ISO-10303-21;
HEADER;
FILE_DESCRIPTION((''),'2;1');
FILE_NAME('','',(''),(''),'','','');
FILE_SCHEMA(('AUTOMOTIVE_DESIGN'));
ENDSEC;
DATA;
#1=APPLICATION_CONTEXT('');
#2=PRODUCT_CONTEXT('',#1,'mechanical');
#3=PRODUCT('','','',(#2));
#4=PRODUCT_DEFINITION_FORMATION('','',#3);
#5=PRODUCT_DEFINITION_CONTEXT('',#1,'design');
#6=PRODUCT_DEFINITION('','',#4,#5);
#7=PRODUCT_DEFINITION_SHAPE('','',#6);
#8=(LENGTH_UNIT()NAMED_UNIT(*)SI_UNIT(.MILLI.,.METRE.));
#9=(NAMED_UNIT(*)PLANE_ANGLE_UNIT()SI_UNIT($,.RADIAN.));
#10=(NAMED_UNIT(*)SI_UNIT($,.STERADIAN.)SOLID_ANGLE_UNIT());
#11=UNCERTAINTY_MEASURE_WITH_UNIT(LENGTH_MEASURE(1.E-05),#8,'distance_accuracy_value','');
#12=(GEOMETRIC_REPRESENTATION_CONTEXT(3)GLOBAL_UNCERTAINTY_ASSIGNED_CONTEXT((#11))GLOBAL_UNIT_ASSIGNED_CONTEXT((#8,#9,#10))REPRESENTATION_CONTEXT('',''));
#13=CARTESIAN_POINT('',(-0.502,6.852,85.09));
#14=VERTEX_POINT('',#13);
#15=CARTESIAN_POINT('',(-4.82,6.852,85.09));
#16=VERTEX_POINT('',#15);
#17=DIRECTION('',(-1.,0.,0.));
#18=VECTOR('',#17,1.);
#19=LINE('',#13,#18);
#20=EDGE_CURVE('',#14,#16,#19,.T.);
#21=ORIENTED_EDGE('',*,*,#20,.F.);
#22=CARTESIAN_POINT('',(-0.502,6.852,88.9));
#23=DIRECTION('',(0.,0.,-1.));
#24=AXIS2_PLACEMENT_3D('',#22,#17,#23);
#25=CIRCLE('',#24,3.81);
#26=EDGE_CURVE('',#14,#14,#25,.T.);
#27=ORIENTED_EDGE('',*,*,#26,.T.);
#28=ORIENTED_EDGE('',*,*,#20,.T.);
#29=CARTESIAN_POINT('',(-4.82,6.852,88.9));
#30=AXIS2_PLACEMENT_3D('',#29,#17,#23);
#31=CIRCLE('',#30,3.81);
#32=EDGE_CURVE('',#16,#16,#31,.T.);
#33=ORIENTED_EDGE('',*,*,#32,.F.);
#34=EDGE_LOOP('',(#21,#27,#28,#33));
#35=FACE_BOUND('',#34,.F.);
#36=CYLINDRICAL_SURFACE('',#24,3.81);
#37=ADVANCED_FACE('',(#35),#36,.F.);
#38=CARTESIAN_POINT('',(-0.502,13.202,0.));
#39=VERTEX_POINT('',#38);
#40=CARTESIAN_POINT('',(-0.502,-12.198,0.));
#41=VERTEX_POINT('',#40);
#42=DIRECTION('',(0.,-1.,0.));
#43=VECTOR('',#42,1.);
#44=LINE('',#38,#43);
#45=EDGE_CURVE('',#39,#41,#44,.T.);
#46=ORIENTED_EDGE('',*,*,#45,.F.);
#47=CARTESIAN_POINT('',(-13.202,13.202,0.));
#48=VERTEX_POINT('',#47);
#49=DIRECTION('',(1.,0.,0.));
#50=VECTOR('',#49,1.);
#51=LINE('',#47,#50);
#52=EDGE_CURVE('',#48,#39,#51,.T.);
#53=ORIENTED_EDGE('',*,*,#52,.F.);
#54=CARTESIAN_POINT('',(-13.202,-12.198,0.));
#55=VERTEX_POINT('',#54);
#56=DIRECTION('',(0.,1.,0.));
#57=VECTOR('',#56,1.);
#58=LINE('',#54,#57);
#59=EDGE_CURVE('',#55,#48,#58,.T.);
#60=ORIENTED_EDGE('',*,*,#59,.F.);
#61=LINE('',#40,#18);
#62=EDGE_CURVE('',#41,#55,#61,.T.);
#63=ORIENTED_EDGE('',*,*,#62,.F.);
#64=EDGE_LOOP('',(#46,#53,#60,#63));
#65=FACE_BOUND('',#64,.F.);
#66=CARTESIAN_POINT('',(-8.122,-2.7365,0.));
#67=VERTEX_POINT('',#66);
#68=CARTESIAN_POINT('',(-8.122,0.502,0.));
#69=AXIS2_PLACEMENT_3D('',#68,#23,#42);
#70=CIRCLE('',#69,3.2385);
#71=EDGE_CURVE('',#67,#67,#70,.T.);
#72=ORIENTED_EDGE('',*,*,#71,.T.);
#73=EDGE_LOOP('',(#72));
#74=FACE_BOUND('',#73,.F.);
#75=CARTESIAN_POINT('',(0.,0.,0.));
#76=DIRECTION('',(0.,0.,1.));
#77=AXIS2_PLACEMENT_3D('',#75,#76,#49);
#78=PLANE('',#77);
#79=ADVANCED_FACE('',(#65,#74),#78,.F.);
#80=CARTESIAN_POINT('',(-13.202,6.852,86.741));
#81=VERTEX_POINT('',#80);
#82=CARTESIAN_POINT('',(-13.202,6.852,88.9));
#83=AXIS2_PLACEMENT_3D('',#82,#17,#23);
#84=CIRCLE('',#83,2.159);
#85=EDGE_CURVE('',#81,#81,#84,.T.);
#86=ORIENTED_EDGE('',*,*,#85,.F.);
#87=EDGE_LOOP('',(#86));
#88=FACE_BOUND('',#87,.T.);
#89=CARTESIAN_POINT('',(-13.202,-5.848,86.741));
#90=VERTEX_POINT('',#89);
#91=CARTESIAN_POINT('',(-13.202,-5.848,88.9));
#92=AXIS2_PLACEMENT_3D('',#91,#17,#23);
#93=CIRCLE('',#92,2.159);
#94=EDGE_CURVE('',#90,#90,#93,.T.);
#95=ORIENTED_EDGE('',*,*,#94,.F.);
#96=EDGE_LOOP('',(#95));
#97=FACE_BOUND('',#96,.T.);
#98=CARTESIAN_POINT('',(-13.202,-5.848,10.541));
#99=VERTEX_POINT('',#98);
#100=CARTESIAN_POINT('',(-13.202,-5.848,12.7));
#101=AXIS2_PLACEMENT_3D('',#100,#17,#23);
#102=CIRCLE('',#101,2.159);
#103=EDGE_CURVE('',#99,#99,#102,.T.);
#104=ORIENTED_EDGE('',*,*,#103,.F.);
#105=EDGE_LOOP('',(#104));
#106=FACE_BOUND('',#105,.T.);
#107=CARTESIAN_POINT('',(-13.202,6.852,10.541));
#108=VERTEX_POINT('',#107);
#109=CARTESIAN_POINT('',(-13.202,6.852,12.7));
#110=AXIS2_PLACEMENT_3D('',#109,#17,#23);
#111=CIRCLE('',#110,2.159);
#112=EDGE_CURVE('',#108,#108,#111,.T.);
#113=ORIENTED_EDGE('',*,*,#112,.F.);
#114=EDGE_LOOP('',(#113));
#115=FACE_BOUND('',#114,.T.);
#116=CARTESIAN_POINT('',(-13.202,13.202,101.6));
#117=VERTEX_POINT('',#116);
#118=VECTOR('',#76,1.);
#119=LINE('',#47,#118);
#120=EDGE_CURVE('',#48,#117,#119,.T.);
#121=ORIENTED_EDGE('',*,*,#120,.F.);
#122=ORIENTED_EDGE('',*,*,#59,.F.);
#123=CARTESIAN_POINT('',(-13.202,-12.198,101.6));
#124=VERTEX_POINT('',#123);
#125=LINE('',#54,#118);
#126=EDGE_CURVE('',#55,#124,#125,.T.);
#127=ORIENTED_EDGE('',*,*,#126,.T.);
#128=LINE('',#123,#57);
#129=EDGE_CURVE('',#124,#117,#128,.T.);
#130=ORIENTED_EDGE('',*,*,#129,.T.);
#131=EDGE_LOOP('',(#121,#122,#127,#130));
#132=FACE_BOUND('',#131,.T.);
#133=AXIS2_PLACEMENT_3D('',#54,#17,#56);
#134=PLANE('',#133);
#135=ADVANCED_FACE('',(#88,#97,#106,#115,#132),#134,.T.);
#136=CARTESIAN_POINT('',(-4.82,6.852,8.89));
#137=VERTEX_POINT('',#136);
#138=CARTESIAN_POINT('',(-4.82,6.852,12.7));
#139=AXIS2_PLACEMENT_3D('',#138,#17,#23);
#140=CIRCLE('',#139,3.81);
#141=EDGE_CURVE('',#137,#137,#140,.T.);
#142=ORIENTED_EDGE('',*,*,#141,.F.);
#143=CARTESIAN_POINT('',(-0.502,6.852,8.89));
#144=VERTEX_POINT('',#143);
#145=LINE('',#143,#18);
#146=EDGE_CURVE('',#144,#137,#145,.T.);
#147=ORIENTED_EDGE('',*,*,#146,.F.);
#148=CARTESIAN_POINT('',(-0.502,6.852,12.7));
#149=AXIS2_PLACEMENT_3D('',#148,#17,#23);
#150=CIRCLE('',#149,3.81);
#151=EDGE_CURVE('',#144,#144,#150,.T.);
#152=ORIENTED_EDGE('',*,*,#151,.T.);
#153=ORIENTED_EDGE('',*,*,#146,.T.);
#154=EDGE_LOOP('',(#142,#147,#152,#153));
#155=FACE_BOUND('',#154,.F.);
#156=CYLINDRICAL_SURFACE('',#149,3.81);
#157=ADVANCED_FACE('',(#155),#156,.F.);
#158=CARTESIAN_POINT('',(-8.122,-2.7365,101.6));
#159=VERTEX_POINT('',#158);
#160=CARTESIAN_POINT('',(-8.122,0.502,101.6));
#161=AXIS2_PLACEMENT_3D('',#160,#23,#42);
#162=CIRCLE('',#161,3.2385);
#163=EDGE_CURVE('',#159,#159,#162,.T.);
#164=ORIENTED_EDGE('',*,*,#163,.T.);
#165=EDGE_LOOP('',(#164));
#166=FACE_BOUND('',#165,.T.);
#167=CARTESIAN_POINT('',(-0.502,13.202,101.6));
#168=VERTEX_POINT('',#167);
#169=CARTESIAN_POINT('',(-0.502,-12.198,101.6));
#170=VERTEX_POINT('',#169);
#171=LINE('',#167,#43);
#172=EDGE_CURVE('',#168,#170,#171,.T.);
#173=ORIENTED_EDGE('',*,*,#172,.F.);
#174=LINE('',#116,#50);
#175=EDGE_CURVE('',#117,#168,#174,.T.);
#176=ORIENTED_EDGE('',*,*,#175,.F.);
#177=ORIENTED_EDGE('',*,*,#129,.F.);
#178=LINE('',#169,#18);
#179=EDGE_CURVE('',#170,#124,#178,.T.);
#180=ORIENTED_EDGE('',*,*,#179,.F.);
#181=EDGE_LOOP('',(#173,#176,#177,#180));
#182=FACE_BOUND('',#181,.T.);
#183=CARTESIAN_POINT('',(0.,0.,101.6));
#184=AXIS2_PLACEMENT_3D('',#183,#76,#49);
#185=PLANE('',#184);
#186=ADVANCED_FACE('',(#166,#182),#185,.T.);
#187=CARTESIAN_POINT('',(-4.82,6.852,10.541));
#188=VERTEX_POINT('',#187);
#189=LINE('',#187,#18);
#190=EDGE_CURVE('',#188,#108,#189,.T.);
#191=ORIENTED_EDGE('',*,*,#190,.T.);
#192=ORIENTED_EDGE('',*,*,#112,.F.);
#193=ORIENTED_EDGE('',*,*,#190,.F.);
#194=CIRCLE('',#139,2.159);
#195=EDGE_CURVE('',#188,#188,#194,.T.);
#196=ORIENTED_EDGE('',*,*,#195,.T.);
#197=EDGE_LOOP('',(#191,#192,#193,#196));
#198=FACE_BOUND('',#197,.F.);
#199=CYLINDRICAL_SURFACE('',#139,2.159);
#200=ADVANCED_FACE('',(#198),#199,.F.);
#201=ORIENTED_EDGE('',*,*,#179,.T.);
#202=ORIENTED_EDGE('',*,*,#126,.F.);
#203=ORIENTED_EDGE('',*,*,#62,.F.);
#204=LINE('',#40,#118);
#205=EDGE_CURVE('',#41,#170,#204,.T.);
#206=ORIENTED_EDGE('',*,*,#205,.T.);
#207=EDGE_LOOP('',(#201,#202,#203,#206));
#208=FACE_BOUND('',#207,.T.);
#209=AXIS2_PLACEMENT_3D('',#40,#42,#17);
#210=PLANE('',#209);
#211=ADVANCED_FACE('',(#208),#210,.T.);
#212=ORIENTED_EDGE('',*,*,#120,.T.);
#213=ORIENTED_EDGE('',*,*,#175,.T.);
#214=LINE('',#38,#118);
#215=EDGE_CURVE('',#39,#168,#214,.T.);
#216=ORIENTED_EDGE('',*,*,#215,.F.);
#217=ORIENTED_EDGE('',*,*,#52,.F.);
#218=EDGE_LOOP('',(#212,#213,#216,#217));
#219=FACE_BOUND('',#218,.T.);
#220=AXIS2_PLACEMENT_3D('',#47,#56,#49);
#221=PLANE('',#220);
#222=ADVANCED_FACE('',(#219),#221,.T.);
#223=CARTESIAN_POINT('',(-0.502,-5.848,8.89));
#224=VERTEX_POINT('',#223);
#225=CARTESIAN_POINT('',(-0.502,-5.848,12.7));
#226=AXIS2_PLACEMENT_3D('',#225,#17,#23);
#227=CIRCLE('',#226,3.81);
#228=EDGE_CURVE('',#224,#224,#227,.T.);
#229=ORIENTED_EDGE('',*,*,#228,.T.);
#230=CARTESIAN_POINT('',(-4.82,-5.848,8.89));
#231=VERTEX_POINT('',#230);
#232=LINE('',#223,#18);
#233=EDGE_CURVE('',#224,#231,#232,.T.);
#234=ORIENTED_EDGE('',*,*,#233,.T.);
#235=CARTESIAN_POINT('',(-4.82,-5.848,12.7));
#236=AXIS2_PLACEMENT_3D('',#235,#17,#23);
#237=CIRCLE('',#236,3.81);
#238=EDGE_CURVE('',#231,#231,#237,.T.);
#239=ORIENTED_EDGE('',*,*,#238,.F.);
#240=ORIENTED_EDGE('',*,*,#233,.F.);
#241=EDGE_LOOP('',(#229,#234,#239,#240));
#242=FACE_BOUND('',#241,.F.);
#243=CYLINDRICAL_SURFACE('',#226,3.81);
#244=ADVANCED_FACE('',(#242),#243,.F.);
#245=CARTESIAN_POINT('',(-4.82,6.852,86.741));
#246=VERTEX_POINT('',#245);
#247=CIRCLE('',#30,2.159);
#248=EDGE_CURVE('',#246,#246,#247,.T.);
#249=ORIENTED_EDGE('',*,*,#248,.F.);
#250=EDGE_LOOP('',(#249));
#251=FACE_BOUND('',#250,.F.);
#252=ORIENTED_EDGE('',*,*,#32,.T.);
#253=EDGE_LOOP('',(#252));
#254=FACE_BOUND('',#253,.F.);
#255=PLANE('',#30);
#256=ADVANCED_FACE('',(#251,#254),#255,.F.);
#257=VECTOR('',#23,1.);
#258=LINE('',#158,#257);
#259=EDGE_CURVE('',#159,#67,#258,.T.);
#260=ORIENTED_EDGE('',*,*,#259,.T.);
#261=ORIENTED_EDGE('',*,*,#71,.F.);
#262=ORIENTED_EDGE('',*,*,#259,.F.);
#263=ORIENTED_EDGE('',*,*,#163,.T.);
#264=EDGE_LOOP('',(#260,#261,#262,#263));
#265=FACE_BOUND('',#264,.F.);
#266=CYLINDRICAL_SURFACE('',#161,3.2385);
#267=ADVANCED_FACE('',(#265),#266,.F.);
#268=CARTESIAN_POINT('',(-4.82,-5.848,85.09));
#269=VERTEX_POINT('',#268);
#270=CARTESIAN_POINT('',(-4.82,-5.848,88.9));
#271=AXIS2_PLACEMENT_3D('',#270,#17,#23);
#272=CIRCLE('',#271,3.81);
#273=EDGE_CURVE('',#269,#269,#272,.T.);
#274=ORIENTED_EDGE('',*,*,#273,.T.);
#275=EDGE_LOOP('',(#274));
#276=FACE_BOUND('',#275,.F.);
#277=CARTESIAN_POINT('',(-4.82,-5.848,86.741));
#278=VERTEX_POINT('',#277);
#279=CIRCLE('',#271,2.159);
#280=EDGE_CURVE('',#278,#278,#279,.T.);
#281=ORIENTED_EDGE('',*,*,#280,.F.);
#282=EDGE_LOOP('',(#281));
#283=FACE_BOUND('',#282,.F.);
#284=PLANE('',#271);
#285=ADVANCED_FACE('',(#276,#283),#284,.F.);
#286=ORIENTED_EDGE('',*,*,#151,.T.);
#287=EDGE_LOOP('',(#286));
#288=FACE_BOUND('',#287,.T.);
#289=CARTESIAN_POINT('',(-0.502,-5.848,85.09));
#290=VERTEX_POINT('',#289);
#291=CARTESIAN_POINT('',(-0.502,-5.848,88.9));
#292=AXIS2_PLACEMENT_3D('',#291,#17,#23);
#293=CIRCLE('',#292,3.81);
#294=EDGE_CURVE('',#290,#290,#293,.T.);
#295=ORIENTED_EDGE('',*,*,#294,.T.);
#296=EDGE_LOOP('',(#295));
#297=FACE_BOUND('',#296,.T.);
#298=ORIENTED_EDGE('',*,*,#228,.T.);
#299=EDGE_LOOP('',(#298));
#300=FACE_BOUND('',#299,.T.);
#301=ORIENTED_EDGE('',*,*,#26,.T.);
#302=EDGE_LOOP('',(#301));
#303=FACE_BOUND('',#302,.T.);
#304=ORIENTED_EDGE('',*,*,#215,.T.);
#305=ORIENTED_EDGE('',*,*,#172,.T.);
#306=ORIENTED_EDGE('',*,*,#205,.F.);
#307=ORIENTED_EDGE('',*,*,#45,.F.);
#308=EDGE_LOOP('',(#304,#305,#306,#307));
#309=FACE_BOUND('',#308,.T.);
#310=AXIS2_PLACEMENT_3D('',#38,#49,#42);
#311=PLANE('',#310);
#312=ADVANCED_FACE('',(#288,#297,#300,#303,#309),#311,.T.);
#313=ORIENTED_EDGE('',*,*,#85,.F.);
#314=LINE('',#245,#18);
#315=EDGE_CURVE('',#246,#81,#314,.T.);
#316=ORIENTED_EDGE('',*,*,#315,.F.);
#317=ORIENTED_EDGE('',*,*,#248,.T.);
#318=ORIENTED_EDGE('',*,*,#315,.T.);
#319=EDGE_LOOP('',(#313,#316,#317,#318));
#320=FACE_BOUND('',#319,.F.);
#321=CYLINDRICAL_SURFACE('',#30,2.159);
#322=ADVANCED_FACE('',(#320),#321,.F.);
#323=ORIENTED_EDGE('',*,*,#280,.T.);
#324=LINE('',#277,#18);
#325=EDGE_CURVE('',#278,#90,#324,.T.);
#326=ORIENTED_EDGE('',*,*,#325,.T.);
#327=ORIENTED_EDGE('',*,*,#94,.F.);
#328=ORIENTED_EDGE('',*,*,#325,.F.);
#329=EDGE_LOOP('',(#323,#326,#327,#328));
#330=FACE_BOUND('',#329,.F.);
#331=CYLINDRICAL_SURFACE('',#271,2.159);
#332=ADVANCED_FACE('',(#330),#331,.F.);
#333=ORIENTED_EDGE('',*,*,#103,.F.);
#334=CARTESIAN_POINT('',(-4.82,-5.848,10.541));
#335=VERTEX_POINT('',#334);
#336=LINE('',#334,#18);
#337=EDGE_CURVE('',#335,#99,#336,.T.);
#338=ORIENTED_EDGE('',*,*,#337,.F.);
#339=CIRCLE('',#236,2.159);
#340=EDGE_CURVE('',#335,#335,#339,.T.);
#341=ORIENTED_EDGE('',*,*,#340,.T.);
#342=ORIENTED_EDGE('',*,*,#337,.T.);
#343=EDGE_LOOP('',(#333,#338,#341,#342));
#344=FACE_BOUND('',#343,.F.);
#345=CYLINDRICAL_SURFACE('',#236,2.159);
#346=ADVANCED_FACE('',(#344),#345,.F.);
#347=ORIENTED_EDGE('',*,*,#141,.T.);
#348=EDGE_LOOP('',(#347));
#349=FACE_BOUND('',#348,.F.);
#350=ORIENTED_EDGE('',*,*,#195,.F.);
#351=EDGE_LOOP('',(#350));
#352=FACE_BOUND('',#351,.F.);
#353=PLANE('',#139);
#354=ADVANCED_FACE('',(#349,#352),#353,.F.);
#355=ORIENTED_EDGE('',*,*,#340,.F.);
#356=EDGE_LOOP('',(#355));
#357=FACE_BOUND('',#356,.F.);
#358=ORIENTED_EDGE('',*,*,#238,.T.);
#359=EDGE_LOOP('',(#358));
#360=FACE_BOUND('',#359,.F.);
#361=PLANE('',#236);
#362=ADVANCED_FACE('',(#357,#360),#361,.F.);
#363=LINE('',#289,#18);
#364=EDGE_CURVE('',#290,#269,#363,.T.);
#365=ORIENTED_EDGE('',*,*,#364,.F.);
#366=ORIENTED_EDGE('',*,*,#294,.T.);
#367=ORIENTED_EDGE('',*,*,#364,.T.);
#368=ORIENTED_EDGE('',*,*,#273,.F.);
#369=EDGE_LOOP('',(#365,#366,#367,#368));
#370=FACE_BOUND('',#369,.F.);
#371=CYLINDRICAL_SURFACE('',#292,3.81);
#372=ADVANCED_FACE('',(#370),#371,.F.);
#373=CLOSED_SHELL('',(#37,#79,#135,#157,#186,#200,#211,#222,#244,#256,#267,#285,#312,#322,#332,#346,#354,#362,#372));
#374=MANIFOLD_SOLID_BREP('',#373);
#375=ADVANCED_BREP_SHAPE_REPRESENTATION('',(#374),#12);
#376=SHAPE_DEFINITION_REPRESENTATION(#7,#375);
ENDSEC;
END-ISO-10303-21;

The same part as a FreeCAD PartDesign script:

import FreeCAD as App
import Part
import Sketcher
from FreeCAD import Vector
Q = App.Units.Quantity

doc = App.newDocument("Part")
body = doc.addObject("PartDesign::Body", "Body")

# Sketch on XY plane
sketch1 = body.newObject("Sketcher::SketchObject", "Sketch")
sketch1.AttachmentSupport = (doc.getObject("XY_Plane"), [""])
sketch1.MapMode = "FlatFace"
sketch1.addGeometry([
    Part.LineSegment(Vector(-0.502, 13.202, 0), Vector(-13.202, 13.202, 0)),
    Part.LineSegment(Vector(-13.202, 13.202, 0), Vector(-13.202, -12.198, 0)),
    Part.LineSegment(Vector(-13.202, -12.198, 0), Vector(-0.502, -12.198, 0)),
    Part.LineSegment(Vector(-0.502, -12.198, 0), Vector(-0.502, 13.202, 0)),
], False)
sketch1.addConstraint([
    Sketcher.Constraint("Coincident", 0, 2, 1, 1),
    Sketcher.Constraint("Coincident", 1, 2, 2, 1),
    Sketcher.Constraint("Coincident", 2, 2, 3, 1),
    Sketcher.Constraint("Coincident", 3, 2, 0, 1),
    Sketcher.Constraint("Horizontal", 0),
    Sketcher.Constraint("Vertical", 1),
    Sketcher.Constraint("Horizontal", 2),
    Sketcher.Constraint("Vertical", 3),
    Sketcher.Constraint("DistanceY", 1, 2, 1, 1, Q("1 in")),
    Sketcher.Constraint("DistanceX", 0, 2, 0, 1, Q("0.5 in")),
    Sketcher.Constraint("DistanceX", 0, 2, -1, 1, Q("13.202 mm")),
    Sketcher.Constraint("DistanceY", -1, 1, 0, 2, Q("13.202 mm")),
])
pad1 = body.newObject("PartDesign::Pad", "Pad")
pad1.Profile = sketch1
pad1.Length = Q("4 in")

# Sketch on XY plane
sketch2 = body.newObject("Sketcher::SketchObject", "Sketch001")
sketch2.AttachmentSupport = (doc.getObject("XY_Plane"), [""])
sketch2.MapMode = "FlatFace"
sketch2.AttachmentOffset = App.Placement(Vector(0, 0, 4 * 25.4), App.Rotation())
sketch2.addGeometry(Part.Circle(Vector(-8.122, 0.502, 0), Vector(0, 0, 1), 3.2385), False)
sketch2.addConstraint([
    Sketcher.Constraint("Diameter", 0, Q("0.255 in")),
    Sketcher.Constraint("DistanceX", 0, 3, -1, 1, Q("8.122 mm")),
    Sketcher.Constraint("DistanceY", -1, 1, 0, 3, Q("0.502 mm")),
])
doc.recompute()
hole = body.newObject("PartDesign::Hole", "Hole")
hole.Profile = sketch2
hole.ThreadType = "None"
hole.Diameter = Q("0.255 in")
hole.DepthType = "ThroughAll"

# Sketch on YZ plane
sketch3 = body.newObject("Sketcher::SketchObject", "Sketch002")
sketch3.AttachmentSupport = (doc.getObject("YZ_Plane"), [""])
sketch3.MapMode = "FlatFace"
sketch3.AttachmentOffset = App.Placement(Vector(0, 0, -0.502), App.Rotation())
sketch3.addGeometry([
    Part.Circle(Vector(6.852, 12.7, 0), Vector(0, 0, 1), 2.159),
    Part.Circle(Vector(-5.848, 12.7, 0), Vector(0, 0, 1), 2.159),
    Part.Circle(Vector(6.852, 88.9, 0), Vector(0, 0, 1), 2.159),
    Part.Circle(Vector(-5.848, 88.9, 0), Vector(0, 0, 1), 2.159),
], False)
sketch3.addConstraint([
    Sketcher.Constraint("Equal", 0, 1),
    Sketcher.Constraint("Equal", 1, 2),
    Sketcher.Constraint("Equal", 2, 3),
    Sketcher.Constraint("Horizontal", 0, 3, 1, 3),
    Sketcher.Constraint("Horizontal", 2, 3, 3, 3),
    Sketcher.Constraint("Vertical", 0, 3, 2, 3),
    Sketcher.Constraint("Vertical", 1, 3, 3, 3),
    Sketcher.Constraint("Diameter", 0, Q("0.17 in")),
    Sketcher.Constraint("DistanceY", 0, 3, 2, 3, Q("3 in")),
    Sketcher.Constraint("DistanceY", -1, 1, 0, 3, Q("0.5 in")),
    Sketcher.Constraint("DistanceX", 1, 3, 0, 3, Q("0.5 in")),
    Sketcher.Constraint("DistanceX", -1, 1, 0, 3, Q("6.852 mm")),
])
doc.recompute()
hole2 = body.newObject("PartDesign::Hole", "Hole001")
hole2.Profile = sketch3
hole2.ThreadType = "None"
hole2.Diameter = Q("0.17 in")
hole2.DepthType = "ThroughAll"
hole2.HoleCutType = "Counterbore"
hole2.HoleCutDiameter = Q("0.3 in")
hole2.HoleCutDepth = Q("0.17 in")

doc.recompute()
